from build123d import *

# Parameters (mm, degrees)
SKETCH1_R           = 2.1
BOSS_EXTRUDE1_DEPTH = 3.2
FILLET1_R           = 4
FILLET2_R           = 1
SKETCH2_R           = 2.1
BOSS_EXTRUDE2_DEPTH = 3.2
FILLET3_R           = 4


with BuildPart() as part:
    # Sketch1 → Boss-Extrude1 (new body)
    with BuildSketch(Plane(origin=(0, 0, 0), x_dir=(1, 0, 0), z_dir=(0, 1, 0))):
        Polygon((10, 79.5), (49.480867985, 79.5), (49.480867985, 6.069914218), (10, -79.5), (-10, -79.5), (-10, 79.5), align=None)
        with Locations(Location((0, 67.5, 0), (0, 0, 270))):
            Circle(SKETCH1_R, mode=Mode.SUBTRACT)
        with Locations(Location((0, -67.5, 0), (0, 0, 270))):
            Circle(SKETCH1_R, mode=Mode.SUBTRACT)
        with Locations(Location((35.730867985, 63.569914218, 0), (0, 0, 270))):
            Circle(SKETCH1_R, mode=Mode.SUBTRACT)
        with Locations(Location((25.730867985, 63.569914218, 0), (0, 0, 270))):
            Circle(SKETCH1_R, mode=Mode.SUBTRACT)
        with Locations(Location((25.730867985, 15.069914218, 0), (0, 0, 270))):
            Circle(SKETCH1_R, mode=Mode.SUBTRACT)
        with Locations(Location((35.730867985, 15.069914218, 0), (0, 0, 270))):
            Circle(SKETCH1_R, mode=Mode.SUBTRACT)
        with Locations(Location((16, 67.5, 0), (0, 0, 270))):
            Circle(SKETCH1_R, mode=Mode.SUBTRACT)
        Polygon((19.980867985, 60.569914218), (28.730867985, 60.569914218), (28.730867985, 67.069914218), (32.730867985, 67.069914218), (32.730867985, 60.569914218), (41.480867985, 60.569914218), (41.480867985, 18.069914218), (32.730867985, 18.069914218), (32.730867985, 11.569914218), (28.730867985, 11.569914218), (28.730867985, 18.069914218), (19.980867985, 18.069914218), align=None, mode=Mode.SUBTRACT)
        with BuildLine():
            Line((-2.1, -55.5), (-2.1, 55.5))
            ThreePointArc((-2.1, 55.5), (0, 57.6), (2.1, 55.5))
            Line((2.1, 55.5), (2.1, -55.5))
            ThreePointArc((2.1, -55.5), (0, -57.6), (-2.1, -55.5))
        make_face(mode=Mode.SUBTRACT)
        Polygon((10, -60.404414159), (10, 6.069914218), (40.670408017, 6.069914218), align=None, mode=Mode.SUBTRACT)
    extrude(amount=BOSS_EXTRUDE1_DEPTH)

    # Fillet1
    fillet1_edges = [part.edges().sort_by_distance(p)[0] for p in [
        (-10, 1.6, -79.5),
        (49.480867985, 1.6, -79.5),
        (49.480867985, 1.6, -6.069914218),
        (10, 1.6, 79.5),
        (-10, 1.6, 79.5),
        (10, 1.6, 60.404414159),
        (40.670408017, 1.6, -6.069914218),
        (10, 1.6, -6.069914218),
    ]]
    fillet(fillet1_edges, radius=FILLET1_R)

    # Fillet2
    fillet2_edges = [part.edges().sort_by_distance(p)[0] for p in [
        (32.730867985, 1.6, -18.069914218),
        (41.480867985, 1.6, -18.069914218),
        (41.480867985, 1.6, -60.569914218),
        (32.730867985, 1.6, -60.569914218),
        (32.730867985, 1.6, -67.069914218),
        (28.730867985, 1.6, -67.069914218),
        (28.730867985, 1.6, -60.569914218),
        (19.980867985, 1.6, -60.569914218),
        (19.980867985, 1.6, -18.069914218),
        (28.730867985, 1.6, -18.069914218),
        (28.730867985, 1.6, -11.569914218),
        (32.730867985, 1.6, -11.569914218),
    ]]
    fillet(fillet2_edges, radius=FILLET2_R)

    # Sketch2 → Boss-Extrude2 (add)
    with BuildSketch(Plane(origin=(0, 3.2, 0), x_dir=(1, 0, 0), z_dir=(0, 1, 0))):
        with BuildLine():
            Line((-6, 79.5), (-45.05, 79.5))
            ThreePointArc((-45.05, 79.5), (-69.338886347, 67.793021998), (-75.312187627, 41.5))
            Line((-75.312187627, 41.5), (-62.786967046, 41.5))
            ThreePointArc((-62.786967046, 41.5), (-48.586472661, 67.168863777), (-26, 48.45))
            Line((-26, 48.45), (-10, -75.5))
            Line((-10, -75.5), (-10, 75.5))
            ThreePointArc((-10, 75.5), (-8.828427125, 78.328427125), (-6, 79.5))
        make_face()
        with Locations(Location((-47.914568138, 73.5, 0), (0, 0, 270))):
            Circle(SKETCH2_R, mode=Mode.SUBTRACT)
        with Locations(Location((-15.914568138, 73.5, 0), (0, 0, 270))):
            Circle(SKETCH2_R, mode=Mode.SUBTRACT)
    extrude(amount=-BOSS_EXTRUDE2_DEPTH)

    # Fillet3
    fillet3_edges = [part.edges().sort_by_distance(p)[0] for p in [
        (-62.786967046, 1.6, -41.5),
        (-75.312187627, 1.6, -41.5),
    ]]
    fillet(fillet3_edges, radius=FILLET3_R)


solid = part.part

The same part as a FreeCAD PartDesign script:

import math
import FreeCAD as App
import Part
import Sketcher
from FreeCAD import Vector


def edges_at(feature, points):
    """Names of the edges that pass closest to the given points."""
    edges = feature.Shape.Edges
    near = lambda p: min(range(len(edges)), key=lambda i: edges[i].distToShape(Part.Vertex(*p))[0])
    return sorted({f"Edge{near(p) + 1}" for p in points})


def add_polygon(sketch, points):
    """Adds a closed chain of lines whose ends are joined by coincident constraints."""
    first, n = sketch.GeometryCount, len(points)
    for a, b in zip(points, points[1:] + points[:1]):
        sketch.addGeometry(Part.LineSegment(App.Vector(*a, 0), App.Vector(*b, 0)), False)
    for i in range(n):
        sketch.addConstraint(Sketcher.Constraint("Coincident", first + i, 2, first + (i + 1) % n, 1))

doc = App.newDocument("Part")
params = doc.addObject("Spreadsheet::Sheet", "Params")
for row, (alias, value) in enumerate([
    ("sketch1_diameter", "4.2 mm"),
    ("sketch1_width", "20 mm"),
    ("sketch1_width2", "4 mm"),
    ("sketch1_height", "159 mm"),
    ("sketch1_height2", "111 mm"),
    ("pad1_length", "3.2 mm"),
    ("fillet_radius", "4 mm"),
    ("fillet2_radius", "1 mm"),
    ("sketch2_radius", "4 mm"),
    ("sketch2_diameter", "4.2 mm"),
    ("sketch2_height", "151 mm"),
    ("sketch2_radius2", "31.05 mm"),
    ("sketch2_radius3", "19.05 mm"),
    ("pad2_length", "3.2 mm"),
    ("fillet3_radius", "4 mm"),
], start=1):
    params.set(f"A{row}", alias)
    params.set(f"B{row}", "=" + value)
    params.setAlias(f"B{row}", alias)

body = doc.addObject("PartDesign::Body", "Body")

# Sketch on XZ plane
sketch1 = doc.addObject("Sketcher::SketchObject", "Sketch")
body.addObject(sketch1)
sketch1.AttachmentSupport = (doc.XZ_Plane, [""])
sketch1.MapMode = "FlatFace"
add_polygon(sketch1, [(49.5, -79.5), (-10, -79.5), (-10, 79.5), (10, 79.5), (49.5, -6.1)])  # lines 0-4
add_polygon(sketch1, [(10, 60.4), (10, -6.1), (40.7, -6.1)])  # lines 5-7
sketch1.addGeometry(Part.Circle(Vector(0, 67.5, 0), Vector(0, 0, 1), 2.1), False)  # 8
sketch1.addGeometry(Part.Circle(Vector(35.7, -15.1, 0), Vector(0, 0, 1), 2.1), False)  # 9
sketch1.addGeometry(Part.Circle(Vector(25.7, -15.1, 0), Vector(0, 0, 1), 2.1), False)  # 10
add_polygon(sketch1, [(20, -60.6), (28.7, -60.6), (28.7, -67.1), (32.7, -67.1), (32.7, -60.6), (41.5, -60.6), (41.5, -18.1), (32.7, -18.1), (32.7, -11.6), (28.7, -11.6), (28.7, -18.1), (20, -18.1)])  # lines 11-22
sketch1.addGeometry(Part.Circle(Vector(35.7, -63.6, 0), Vector(0, 0, 1), 2.1), False)  # 23
sketch1.addGeometry(Part.Circle(Vector(25.7, -63.6, 0), Vector(0, 0, 1), 2.1), False)  # 24
sketch1.addGeometry(Part.LineSegment(Vector(-2.1, 55.5, 0), Vector(-2.1, -55.5, 0)), False)  # 25
sketch1.addGeometry(Part.ArcOfCircle(Part.Circle(Vector(0, -55.5, 0), Vector(0, 0, 1), 2.1), math.radians(180), math.radians(360)), False)  # 26
sketch1.addGeometry(Part.LineSegment(Vector(2.1, -55.5, 0), Vector(2.1, 55.5, 0)), False)  # 27
sketch1.addGeometry(Part.ArcOfCircle(Part.Circle(Vector(0, 55.5, 0), Vector(0, 0, 1), 2.1), math.radians(0), math.radians(180)), False)  # 28
sketch1.addGeometry(Part.Circle(Vector(16, -67.5, 0), Vector(0, 0, 1), 2.1), False)  # 29
sketch1.addGeometry(Part.Circle(Vector(0, -67.5, 0), Vector(0, 0, 1), 2.1), False)  # 30
sketch1.addConstraint([
    Sketcher.Constraint("Tangent", 25, 2, 26, 1),
    Sketcher.Constraint("Tangent", 26, 2, 27, 1),
    Sketcher.Constraint("Tangent", 27, 2, 28, 1),
    Sketcher.Constraint("Tangent", 28, 2, 25, 1),
    Sketcher.Constraint("Horizontal", 0),
    Sketcher.Constraint("Vertical", 1),
    Sketcher.Constraint("Horizontal", 2),
    Sketcher.Constraint("Vertical", 4),
    Sketcher.Constraint("Vertical", 5),
    Sketcher.Constraint("Horizontal", 6),
    Sketcher.Constraint("Horizontal", 11),
    Sketcher.Constraint("Vertical", 12),
    Sketcher.Constraint("Horizontal", 13),
    Sketcher.Constraint("Vertical", 14),
    Sketcher.Constraint("Horizontal", 15),
    Sketcher.Constraint("Vertical", 16),
    Sketcher.Constraint("Horizontal", 17),
    Sketcher.Constraint("Vertical", 18),
    Sketcher.Constraint("Horizontal", 19),
    Sketcher.Constraint("Vertical", 20),
    Sketcher.Constraint("Horizontal", 21),
    Sketcher.Constraint("Vertical", 22),
    Sketcher.Constraint("Vertical", 25),
    Sketcher.Constraint("Vertical", 27),
    Sketcher.Constraint("Equal", 8, 9),
    Sketcher.Constraint("Equal", 9, 10),
    Sketcher.Constraint("Equal", 10, 23),
    Sketcher.Constraint("Equal", 23, 24),
    Sketcher.Constraint("Equal", 24, 26),
    Sketcher.Constraint("Equal", 28, 29),
    Sketcher.Constraint("Equal", 29, 30),
    Sketcher.Constraint("Symmetric", 26, 3, 28, 3, -1, 1),
    Sketcher.Constraint("Symmetric", 8, 3, 30, 3, -1, 1),
    Sketcher.Constraint("Symmetric", 0, 2, 2, 2, -1, 1),
    Sketcher.Constraint("PointOnObject", 8, 3, -2),
    Sketcher.Constraint("Parallel", 3, 7),
    Sketcher.Constraint("Horizontal", 9, 3, 10, 3),
    Sketcher.Constraint("Horizontal", 23, 3, 24, 3),
    Sketcher.Constraint("Horizontal", 29, 3, 30, 3),
    Sketcher.Constraint("Horizontal", 3, 2, 5, 2),
    Sketcher.Constraint("Horizontal", 11, 2, 14, 2),
    Sketcher.Constraint("Horizontal", 17, 2, 20, 2),
    Sketcher.Constraint("Vertical", 9, 3, 23, 3),
    Sketcher.Constraint("Vertical", 10, 3, 24, 3),
    Sketcher.Constraint("Vertical", 2, 2, 5, 2),
    Sketcher.Constraint("Vertical", 14, 2, 17, 2),
    Sketcher.Constraint("Vertical", 12, 2, 19, 2),
    Sketcher.Constraint("Equal", 11, 15),
    Sketcher.Constraint("Equal", 14, 18),
    Sketcher.Constraint("Diameter", 8, 4.2),
    Sketcher.Constraint("DistanceX", 2, 1, 2, 2, 20.0),
    Sketcher.Constraint("DistanceX", 13, 1, 13, 2, 4.0),
    Sketcher.Constraint("DistanceY", 1, 1, 1, 2, 159.0),
    Sketcher.Constraint("DistanceY", 25, 2, 25, 1, 111.0),
    Sketcher.Constraint("DistanceY", 12, 2, 12, 1, 6.5),
    Sketcher.Constraint("DistanceY", 16, 1, 16, 2, 42.5),
    Sketcher.Constraint("DistanceX", -1, 1, 29, 3, 16.0),
    Sketcher.Constraint("DistanceX", 10, 3, 9, 3, 10.0),
    Sketcher.Constraint("DistanceY", 26, 3, 8, 3, 123.0),
    Sketcher.Constraint("DistanceY", 9, 3, 3, 2, 9.0),
    Sketcher.Constraint("DistanceX", 24, 3, 11, 2, 3.0),
    Sketcher.Constraint("DistanceY", 24, 3, 11, 2, 3.0),
    Sketcher.Constraint("DistanceY", 16, 2, 9, 3, 3.0),
    Sketcher.Constraint("DistanceX", 16, 2, 3, 2, 8.0),
    Sketcher.Constraint("DistanceX", 11, 1, 11, 2, 8.75),
    Sketcher.Constraint("DistanceX", 6, 1, 6, 2, 30.670408),
    Sketcher.Constraint("DistanceY", 5, 2, 5, 1, 66.474328),
    Sketcher.Constraint("DistanceX", 0, 2, 0, 1, 59.480868),
])
sketch1.setExpression("Constraints[69]", "Params.sketch1_diameter")
sketch1.setExpression("Constraints[70]", "Params.sketch1_width")
sketch1.setExpression("Constraints[71]", "Params.sketch1_width2")
sketch1.setExpression("Constraints[72]", "Params.sketch1_height")
sketch1.setExpression("Constraints[73]", "Params.sketch1_height2")
pad1 = doc.addObject("PartDesign::Pad", "Pad")
body.addObject(pad1)
pad1.Profile = sketch1
pad1.setExpression("Length", "Params.pad1_length")
pad1.Reversed = True
doc.recompute()

fillet = doc.addObject("PartDesign::Fillet", "Fillet")
body.addObject(fillet)
fillet.Base = (pad1, edges_at(pad1, [
    (-10, 1.6, -79.5),
    (49.481, 1.6, -79.5),
    (49.481, 1.6, -6.07),
    (10, 1.6, 79.5),
    (-10, 1.6, 79.5),
    (10, 1.6, 60.404),
    (40.67, 1.6, -6.07),
    (10, 1.6, -6.07),
]))
fillet.setExpression("Radius", "Params.fillet_radius")
doc.recompute()

fillet2 = doc.addObject("PartDesign::Fillet", "Fillet001")
body.addObject(fillet2)
fillet2.Base = (fillet, edges_at(fillet, [
    (32.731, 1.6, -18.07),
    (41.481, 1.6, -18.07),
    (41.481, 1.6, -60.57),
    (32.731, 1.6, -60.57),
    (32.731, 1.6, -67.07),
    (28.731, 1.6, -67.07),
    (28.731, 1.6, -60.57),
    (19.981, 1.6, -60.57),
    (19.981, 1.6, -18.07),
    (28.731, 1.6, -18.07),
    (28.731, 1.6, -11.57),
    (32.731, 1.6, -11.57),
]))
fillet2.setExpression("Radius", "Params.fillet2_radius")

# Sketch on XZ plane
sketch2 = doc.addObject("Sketcher::SketchObject", "Sketch001")
body.addObject(sketch2)
sketch2.AttachmentSupport = (doc.XZ_Plane, [""])
sketch2.MapMode = "FlatFace"
sketch2.AttachmentOffset = App.Placement(Vector(0, 0, -3.2), App.Rotation())
sketch2.addGeometry([
    Part.LineSegment(Vector(-6, -79.5, 0), Vector(-45, -79.5, 0)),  # 0
    Part.ArcOfCircle(Part.Circle(Vector(-45, -48.5, 0), Vector(0, 0, 1), 31.1), math.radians(167), math.radians(270)),  # 1
    Part.LineSegment(Vector(-75.3, -41.5, 0), Vector(-62.8, -41.5, 0)),  # 2
    Part.ArcOfCircle(Part.Circle(Vector(-45, -48.5, 0), Vector(0, 0, 1), 19.1), math.radians(159), math.radians(360)),  # 3
    Part.LineSegment(Vector(-26, -48.5, 0), Vector(-10, 75.5, 0)),  # 4
    Part.LineSegment(Vector(-10, 75.5, 0), Vector(-10, -75.5, 0)),  # 5
    Part.ArcOfCircle(Part.Circle(Vector(-6, -75.5, 0), Vector(0, 0, 1), 4), math.radians(180), math.radians(270)),  # 6
    Part.Circle(Vector(-47.9, -73.5, 0), Vector(0, 0, 1), 2.1),  # 7
    Part.Circle(Vector(-15.9, -73.5, 0), Vector(0, 0, 1), 2.1),  # 8
], False)
sketch2.addConstraint([
    Sketcher.Constraint("Tangent", 0, 2, 1, 2),
    Sketcher.Constraint("Coincident", 1, 1, 2, 1),
    Sketcher.Constraint("Coincident", 2, 2, 3, 1),
    Sketcher.Constraint("Coincident", 3, 2, 4, 1),
    Sketcher.Constraint("Coincident", 4, 2, 5, 1),
    Sketcher.Constraint("Tangent", 5, 2, 6, 1),
    Sketcher.Constraint("Tangent", 6, 2, 0, 1),
    Sketcher.Constraint("Horizontal", 0),
    Sketcher.Constraint("Horizontal", 2),
    Sketcher.Constraint("Vertical", 5),
    Sketcher.Constraint("Coincident", 3, 3, 1, 3),
    Sketcher.Constraint("Equal", 7, 8),
    Sketcher.Constraint("Horizontal", 7, 3, 8, 3),
    Sketcher.Constraint("Horizontal", 1, 3, 3, 2),
    Sketcher.Constraint("Radius", 6, 4.0),
    Sketcher.Constraint("Diameter", 7, 4.2),
    Sketcher.Constraint("DistanceY", 5, 2, 5, 1, 151.0),
    Sketcher.Constraint("Radius", 1, 31.05),
    Sketcher.Constraint("Radius", 3, 19.05),
    Sketcher.Constraint("DistanceX", 6, 3, -1, 1, 6.0),
    Sketcher.Constraint("DistanceX", 3, 2, -1, 1, 26.0),
    Sketcher.Constraint("DistanceY", 6, 3, 7, 3, 2.0),
    Sketcher.Constraint("DistanceX", 7, 3, 8, 3, 32.0),
    Sketcher.Constraint("DistanceY", 7, 3, 1, 1, 32.0),
    Sketcher.Constraint("DistanceY", 6, 3, -1, 1, 75.5),
    Sketcher.Constraint("DistanceX", 2, 2, 7, 3, 14.872399),
])
sketch2.setExpression("Constraints[14]", "Params.sketch2_radius")
sketch2.setExpression("Constraints[15]", "Params.sketch2_diameter")
sketch2.setExpression("Constraints[16]", "Params.sketch2_height")
sketch2.setExpression("Constraints[17]", "Params.sketch2_radius2")
sketch2.setExpression("Constraints[18]", "Params.sketch2_radius3")
pad2 = doc.addObject("PartDesign::Pad", "Pad001")
body.addObject(pad2)
pad2.Profile = sketch2
pad2.setExpression("Length", "Params.pad2_length")
doc.recompute()

fillet3 = doc.addObject("PartDesign::Fillet", "Fillet002")
body.addObject(fillet3)
fillet3.Base = (pad2, edges_at(pad2, [(-62.787, 1.6, -41.5), (-75.312, 1.6, -41.5)]))
fillet3.setExpression("Radius", "Params.fillet3_radius")

doc.recompute()
